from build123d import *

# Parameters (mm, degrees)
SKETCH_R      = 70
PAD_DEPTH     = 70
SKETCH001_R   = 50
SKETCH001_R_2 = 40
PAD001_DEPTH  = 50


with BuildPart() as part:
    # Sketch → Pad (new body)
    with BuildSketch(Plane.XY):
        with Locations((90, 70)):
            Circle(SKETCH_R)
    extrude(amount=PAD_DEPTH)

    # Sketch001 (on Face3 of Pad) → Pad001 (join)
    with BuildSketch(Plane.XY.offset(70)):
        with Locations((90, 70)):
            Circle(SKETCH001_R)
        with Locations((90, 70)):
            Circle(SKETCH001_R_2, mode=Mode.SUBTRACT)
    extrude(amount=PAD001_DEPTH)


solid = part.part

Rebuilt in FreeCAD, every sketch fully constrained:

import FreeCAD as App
import Part
import Sketcher
from FreeCAD import Vector

doc = App.newDocument("Part")
params = doc.addObject("Spreadsheet::Sheet", "Params")
for row, (alias, value) in enumerate([
    ("sketch1_diameter", "140 mm"),
    ("pad1_length", "70 mm"),
    ("sketch2_diameter", "100 mm"),
    ("sketch2_diameter2", "80 mm"),
    ("pad2_length", "50 mm"),
], start=1):
    params.set(f"A{row}", alias)
    params.set(f"B{row}", "=" + value)
    params.setAlias(f"B{row}", alias)

body = doc.addObject("PartDesign::Body", "Body")

# Sketch on XY plane
sketch1 = body.newObject("Sketcher::SketchObject", "Sketch")
sketch1.AttachmentSupport = (doc.getObject("XY_Plane"), [""])
sketch1.MapMode = "FlatFace"
sketch1.addGeometry(Part.Circle(Vector(90, 70, 0), Vector(0, 0, 1), 70), False)
sketch1.addConstraint(Sketcher.Constraint("Diameter", 0, 140.0))
sketch1.addConstraint(Sketcher.Constraint("DistanceX", -1, 1, 0, 3, 90.0))
sketch1.addConstraint(Sketcher.Constraint("DistanceY", -1, 1, 0, 3, 70.0))
sketch1.setExpression("Constraints[0]", "Params.sketch1_diameter")
pad1 = body.newObject("PartDesign::Pad", "Pad")
pad1.Profile = sketch1
pad1.setExpression("Length", "Params.pad1_length")

# Sketch on XY plane
sketch2 = body.newObject("Sketcher::SketchObject", "Sketch001")
sketch2.AttachmentSupport = (doc.getObject("XY_Plane"), [""])
sketch2.MapMode = "FlatFace"
sketch2.AttachmentOffset = App.Placement(Vector(0, 0, 70), App.Rotation())
sketch2.addGeometry(Part.Circle(Vector(90, 70, 0), Vector(0, 0, 1), 50), False)
sketch2.addGeometry(Part.Circle(Vector(90, 70, 0), Vector(0, 0, 1), 40), False)
sketch2.addConstraint(Sketcher.Constraint("Coincident", 1, 3, 0, 3))
sketch2.addConstraint(Sketcher.Constraint("Diameter", 0, 100.0))
sketch2.addConstraint(Sketcher.Constraint("Diameter", 1, 80.0))
sketch2.addConstraint(Sketcher.Constraint("DistanceX", -1, 1, 0, 3, 90.0))
sketch2.addConstraint(Sketcher.Constraint("DistanceY", -1, 1, 0, 3, 70.0))
sketch2.setExpression("Constraints[1]", "Params.sketch2_diameter")
sketch2.setExpression("Constraints[2]", "Params.sketch2_diameter2")
pad2 = body.newObject("PartDesign::Pad", "Pad001")
pad2.Profile = sketch2
pad2.setExpression("Length", "Params.pad2_length")

doc.recompute()
